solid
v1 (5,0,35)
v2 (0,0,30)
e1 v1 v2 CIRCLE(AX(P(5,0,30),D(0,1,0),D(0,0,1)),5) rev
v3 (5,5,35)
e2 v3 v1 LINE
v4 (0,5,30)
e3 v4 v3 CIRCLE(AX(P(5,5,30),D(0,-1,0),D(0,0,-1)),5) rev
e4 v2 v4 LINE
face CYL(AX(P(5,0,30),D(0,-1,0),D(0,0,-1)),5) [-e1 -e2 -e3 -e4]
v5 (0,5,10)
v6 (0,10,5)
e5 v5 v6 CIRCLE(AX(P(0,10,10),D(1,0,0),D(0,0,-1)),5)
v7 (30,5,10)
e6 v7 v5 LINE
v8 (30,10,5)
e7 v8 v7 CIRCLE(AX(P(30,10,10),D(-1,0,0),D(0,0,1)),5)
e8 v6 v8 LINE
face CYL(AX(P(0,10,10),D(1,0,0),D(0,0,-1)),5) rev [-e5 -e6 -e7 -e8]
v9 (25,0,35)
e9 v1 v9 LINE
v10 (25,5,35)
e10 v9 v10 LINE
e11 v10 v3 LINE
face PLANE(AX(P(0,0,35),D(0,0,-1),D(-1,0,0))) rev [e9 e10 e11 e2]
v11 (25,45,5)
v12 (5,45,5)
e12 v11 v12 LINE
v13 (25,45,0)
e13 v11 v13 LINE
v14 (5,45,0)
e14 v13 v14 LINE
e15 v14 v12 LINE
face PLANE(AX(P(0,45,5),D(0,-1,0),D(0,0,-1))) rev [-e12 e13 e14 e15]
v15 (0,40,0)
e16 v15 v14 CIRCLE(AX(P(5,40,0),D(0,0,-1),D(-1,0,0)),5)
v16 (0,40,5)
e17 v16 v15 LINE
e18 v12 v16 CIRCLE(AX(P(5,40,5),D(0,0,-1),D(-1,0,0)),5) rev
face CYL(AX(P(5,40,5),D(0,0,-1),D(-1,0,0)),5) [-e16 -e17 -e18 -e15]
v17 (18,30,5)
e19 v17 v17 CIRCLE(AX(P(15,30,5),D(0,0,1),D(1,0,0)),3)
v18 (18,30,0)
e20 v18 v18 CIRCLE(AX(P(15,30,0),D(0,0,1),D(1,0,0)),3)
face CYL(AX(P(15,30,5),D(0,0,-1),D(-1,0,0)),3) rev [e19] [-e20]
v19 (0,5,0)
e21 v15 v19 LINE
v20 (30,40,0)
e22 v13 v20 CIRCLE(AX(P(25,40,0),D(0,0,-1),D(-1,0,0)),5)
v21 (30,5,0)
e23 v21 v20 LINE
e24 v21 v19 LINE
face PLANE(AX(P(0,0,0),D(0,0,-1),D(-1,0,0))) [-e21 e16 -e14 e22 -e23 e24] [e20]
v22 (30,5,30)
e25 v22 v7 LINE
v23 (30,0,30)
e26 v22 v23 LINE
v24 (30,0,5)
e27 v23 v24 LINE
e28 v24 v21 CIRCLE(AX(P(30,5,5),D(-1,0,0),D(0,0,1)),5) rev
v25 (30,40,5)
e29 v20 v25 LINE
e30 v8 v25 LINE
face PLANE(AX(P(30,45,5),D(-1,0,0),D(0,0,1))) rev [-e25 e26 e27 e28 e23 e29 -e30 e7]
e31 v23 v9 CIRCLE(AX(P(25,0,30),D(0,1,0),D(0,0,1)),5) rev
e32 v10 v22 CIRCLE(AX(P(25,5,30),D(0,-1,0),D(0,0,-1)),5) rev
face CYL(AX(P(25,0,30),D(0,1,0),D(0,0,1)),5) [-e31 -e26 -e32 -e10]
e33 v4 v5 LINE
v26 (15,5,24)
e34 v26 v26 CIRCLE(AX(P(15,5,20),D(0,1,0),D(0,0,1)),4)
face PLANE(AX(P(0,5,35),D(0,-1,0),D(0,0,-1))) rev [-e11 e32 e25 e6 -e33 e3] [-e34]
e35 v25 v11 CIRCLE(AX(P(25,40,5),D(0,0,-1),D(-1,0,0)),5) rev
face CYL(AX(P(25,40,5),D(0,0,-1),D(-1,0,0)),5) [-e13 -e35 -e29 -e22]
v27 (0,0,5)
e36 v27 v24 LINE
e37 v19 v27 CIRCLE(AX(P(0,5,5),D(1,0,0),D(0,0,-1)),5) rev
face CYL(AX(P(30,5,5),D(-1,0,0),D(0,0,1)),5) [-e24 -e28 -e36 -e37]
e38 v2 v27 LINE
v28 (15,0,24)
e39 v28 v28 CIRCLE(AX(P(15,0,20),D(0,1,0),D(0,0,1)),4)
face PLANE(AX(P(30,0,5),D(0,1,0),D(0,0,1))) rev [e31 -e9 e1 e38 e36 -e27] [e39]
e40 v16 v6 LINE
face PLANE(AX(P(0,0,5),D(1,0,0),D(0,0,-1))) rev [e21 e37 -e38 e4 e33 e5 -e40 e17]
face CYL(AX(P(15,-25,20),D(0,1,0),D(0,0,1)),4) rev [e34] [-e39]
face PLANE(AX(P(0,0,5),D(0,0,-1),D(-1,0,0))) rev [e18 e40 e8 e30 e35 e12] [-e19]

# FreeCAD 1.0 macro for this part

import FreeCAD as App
import Part
import Sketcher

V = App.Vector
Q = App.Units.Quantity


def edges_at(feature, points):
    """Names of the edges that pass closest to the given points."""
    edges = feature.Shape.Edges
    near = lambda p: min(range(len(edges)), key=lambda i: edges[i].distToShape(Part.Vertex(*p))[0])
    return sorted({f"Edge{near(p) + 1}" for p in points})

doc = App.newDocument("Part")
body = doc.addObject("PartDesign::Body", "Body")

# Sketch on XY plane
sketch1 = body.newObject("Sketcher::SketchObject", "Sketch")
sketch1.AttachmentSupport = (doc.getObject("XY_Plane"), [""])
sketch1.MapMode = "FlatFace"
sketch1.addGeometry([
    Part.LineSegment(V(0, 45, 0), V(0, 0, 0)),  # 0
    Part.LineSegment(V(0, 0, 0), V(30, 0, 0)),  # 1
    Part.LineSegment(V(30, 0, 0), V(30, 45, 0)),  # 2
    Part.LineSegment(V(30, 45, 0), V(0, 45, 0)),  # 3
    Part.Circle(V(15, 30, 0), V(0, 0, 1), 3),  # 4
], False)
sketch1.addConstraint([
    Sketcher.Constraint("Coincident", 0, 2, 1, 1),
    Sketcher.Constraint("Coincident", 1, 2, 2, 1),
    Sketcher.Constraint("Coincident", 2, 2, 3, 1),
    Sketcher.Constraint("Coincident", 3, 2, 0, 1),
    Sketcher.Constraint("Vertical", 0),
    Sketcher.Constraint("Horizontal", 1),
    Sketcher.Constraint("Vertical", 2),
    Sketcher.Constraint("Horizontal", 3),
    Sketcher.Constraint("Coincident", 0, 2, -1, 1),
    Sketcher.Constraint("Diameter", 4, Q("6 mm")),
    Sketcher.Constraint("DistanceX", 1, 1, 1, 2, Q("30 mm")),
    Sketcher.Constraint("DistanceY", 0, 2, 0, 1, Q("45 mm")),
    Sketcher.Constraint("DistanceX", -1, 1, 4, 3, Q("15 mm")),
    Sketcher.Constraint("DistanceY", -1, 1, 4, 3, Q("30 mm")),
])
pad1 = body.newObject("PartDesign::Pad", "Pad")
pad1.Profile = sketch1
pad1.Length = 5

# Sketch on XY plane
sketch2 = body.newObject("Sketcher::SketchObject", "Sketch001")
sketch2.AttachmentSupport = (doc.getObject("XY_Plane"), [""])
sketch2.MapMode = "FlatFace"
sketch2.AttachmentOffset = App.Placement(V(0, 0, 5), App.Rotation())
sketch2.addGeometry([
    Part.LineSegment(V(0, 5, 0), V(0, 0, 0)),
    Part.LineSegment(V(0, 0, 0), V(30, 0, 0)),
    Part.LineSegment(V(30, 0, 0), V(30, 5, 0)),
    Part.LineSegment(V(30, 5, 0), V(0, 5, 0)),
], False)
sketch2.addConstraint([
    Sketcher.Constraint("Coincident", 0, 2, 1, 1),
    Sketcher.Constraint("Coincident", 1, 2, 2, 1),
    Sketcher.Constraint("Coincident", 2, 2, 3, 1),
    Sketcher.Constraint("Coincident", 3, 2, 0, 1),
    Sketcher.Constraint("Vertical", 0),
    Sketcher.Constraint("Horizontal", 1),
    Sketcher.Constraint("Vertical", 2),
    Sketcher.Constraint("Horizontal", 3),
    Sketcher.Constraint("Coincident", 0, 2, -1, 1),
    Sketcher.Constraint("DistanceX", 1, 1, 1, 2, Q("30 mm")),
    Sketcher.Constraint("DistanceY", 0, 2, 0, 1, Q("5 mm")),
])
pad2 = body.newObject("PartDesign::Pad", "Pad001")
pad2.Profile = sketch2
pad2.Length = 30

# Sketch on XZ plane
sketch3 = body.newObject("Sketcher::SketchObject", "Sketch002")
sketch3.AttachmentSupport = (doc.getObject("XZ_Plane"), [""])
sketch3.MapMode = "FlatFace"
sketch3.AttachmentOffset = App.Placement(V(0, 0, -5), App.Rotation())
sketch3.addGeometry(Part.Circle(V(15, 20, 0), V(0, 0, 1), 4), False)
sketch3.addConstraint([
    Sketcher.Constraint("Diameter", 0, Q("8 mm")),
    Sketcher.Constraint("DistanceX", -1, 1, 0, 3, Q("15 mm")),
    Sketcher.Constraint("DistanceY", -1, 1, 0, 3, Q("20 mm")),
])
pocket1 = body.newObject("PartDesign::Pocket", "Pocket")
pocket1.Profile = sketch3
pocket1.Length = 30
pocket1.Reversed = True
doc.recompute()

fillet = body.newObject("PartDesign::Fillet", "Fillet")
fillet.Base = (pocket1, edges_at(pocket1, [
    (15, 5, 5),
    (0, 2.5, 35),
    (30, 2.5, 35),
    (15, 0, 0),
    (0, 45, 2.5),
    (30, 45, 2.5),
]))
fillet.Radius = 5

doc.recompute()
